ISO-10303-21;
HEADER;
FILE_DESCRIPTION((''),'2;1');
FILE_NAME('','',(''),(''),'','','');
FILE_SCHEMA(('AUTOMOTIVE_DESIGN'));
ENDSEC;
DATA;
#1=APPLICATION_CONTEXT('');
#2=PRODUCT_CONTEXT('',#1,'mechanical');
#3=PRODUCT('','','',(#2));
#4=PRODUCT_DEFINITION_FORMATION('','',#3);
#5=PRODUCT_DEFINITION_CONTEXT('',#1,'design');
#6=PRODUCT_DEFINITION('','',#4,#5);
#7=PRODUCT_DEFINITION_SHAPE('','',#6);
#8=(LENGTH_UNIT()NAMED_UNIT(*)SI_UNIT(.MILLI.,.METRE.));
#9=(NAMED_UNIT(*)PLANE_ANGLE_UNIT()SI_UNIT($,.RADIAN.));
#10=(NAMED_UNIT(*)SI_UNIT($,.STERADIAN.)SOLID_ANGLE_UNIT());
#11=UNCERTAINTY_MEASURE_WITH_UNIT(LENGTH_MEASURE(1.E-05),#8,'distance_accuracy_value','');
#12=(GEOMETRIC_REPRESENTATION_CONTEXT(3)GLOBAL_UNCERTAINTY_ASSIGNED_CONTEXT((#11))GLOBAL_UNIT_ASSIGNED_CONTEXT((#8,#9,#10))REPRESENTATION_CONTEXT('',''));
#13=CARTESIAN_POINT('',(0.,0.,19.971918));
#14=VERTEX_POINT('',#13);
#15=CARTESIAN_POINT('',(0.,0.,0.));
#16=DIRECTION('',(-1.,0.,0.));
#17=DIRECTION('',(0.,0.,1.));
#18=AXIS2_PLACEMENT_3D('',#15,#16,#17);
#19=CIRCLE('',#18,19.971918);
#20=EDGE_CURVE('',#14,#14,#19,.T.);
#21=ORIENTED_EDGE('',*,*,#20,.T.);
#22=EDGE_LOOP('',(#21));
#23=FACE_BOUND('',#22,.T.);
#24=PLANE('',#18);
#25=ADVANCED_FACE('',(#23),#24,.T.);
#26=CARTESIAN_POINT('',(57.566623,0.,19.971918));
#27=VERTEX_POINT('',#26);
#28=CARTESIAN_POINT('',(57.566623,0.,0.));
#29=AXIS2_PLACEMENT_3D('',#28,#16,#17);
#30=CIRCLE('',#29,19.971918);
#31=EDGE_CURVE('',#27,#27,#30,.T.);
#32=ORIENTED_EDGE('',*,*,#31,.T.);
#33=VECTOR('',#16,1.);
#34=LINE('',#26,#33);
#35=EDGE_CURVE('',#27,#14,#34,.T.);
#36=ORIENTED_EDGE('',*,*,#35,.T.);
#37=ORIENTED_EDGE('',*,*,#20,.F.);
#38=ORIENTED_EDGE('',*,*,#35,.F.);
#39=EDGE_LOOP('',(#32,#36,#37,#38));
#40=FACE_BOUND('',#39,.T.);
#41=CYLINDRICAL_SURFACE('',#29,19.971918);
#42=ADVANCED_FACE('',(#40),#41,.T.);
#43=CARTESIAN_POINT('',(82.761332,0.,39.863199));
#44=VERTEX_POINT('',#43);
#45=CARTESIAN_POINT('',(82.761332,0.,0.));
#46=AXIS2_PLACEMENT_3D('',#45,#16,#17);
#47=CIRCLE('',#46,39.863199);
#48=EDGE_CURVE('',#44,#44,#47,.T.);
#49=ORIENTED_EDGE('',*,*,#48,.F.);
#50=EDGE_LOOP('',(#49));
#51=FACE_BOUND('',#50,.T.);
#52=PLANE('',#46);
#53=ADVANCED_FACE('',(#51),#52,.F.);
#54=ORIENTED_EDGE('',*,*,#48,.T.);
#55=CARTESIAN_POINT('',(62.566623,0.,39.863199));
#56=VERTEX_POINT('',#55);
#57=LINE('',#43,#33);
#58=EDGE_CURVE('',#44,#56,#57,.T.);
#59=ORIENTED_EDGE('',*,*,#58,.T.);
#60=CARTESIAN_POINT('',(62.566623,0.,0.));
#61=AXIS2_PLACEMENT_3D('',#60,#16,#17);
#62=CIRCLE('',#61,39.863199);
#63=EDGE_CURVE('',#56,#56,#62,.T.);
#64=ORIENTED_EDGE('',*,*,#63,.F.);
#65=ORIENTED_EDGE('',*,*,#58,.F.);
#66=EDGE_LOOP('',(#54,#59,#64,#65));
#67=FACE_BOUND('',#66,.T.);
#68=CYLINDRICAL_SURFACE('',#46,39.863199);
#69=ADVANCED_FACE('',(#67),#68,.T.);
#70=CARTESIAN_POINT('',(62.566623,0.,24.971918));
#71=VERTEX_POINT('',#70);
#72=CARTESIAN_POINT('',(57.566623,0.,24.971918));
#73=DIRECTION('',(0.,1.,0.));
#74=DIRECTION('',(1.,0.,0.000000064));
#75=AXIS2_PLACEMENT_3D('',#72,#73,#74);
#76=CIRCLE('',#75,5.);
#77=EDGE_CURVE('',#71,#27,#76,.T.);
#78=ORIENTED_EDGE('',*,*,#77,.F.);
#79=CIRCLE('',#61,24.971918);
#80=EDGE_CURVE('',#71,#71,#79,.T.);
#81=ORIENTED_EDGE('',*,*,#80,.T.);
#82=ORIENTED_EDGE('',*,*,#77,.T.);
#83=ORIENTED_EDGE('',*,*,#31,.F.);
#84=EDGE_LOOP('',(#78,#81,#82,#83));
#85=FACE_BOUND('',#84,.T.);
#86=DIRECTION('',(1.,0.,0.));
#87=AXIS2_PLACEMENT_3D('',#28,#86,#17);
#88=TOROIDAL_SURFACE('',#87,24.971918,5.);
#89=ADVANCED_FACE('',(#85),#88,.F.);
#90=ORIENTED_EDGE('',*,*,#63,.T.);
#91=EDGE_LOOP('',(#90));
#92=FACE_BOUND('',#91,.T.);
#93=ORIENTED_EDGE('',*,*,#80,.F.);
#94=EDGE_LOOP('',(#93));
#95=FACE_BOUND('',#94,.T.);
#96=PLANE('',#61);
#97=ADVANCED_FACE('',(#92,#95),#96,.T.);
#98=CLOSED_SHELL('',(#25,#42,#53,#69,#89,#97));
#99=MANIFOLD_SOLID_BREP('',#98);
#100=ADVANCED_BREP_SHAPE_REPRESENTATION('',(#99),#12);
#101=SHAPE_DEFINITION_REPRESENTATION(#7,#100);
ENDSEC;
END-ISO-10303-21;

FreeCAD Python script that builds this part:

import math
import FreeCAD as App
import Part
import Sketcher
from FreeCAD import Vector
Q = App.Units.Quantity

doc = App.newDocument("Part")
body = doc.addObject("PartDesign::Body", "Body")

# Sketch on XZ plane
sketch1 = body.newObject("Sketcher::SketchObject", "Sketch")
sketch1.AttachmentSupport = (doc.getObject("XZ_Plane"), [""])
sketch1.MapMode = "FlatFace"
sketch1.addGeometry([
    Part.LineSegment(Vector(0, 19.971918, 0), Vector(0, 0, 0)),  # 0
    Part.LineSegment(Vector(0, 0, 0), Vector(82.761332, 0, 0)),  # 1
    Part.LineSegment(Vector(82.761332, 0, 0), Vector(82.761332, 39.863199, 0)),  # 2
    Part.LineSegment(Vector(82.761332, 39.863199, 0), Vector(62.566623, 39.863199, 0)),  # 3
    Part.LineSegment(Vector(62.566623, 39.863199, 0), Vector(62.566623, 24.971918, 0)),  # 4
    Part.ArcOfCircle(Part.Circle(Vector(57.566623, 24.971918, 0), Vector(0, 0, 1), 5), math.radians(-90.000004), math.radians(0.000004)),  # 5
    Part.LineSegment(Vector(57.566623, 19.971918, 0), Vector(0, 19.971918, 0)),  # 6
], False)
sketch1.addConstraint([
    Sketcher.Constraint("Coincident", 0, 2, 1, 1),
    Sketcher.Constraint("Coincident", 1, 2, 2, 1),
    Sketcher.Constraint("Coincident", 2, 2, 3, 1),
    Sketcher.Constraint("Coincident", 3, 2, 4, 1),
    Sketcher.Constraint("Tangent", 4, 2, 5, 2),
    Sketcher.Constraint("Tangent", 5, 1, 6, 1),
    Sketcher.Constraint("Coincident", 6, 2, 0, 1),
    Sketcher.Constraint("Vertical", 0),
    Sketcher.Constraint("Horizontal", 1),
    Sketcher.Constraint("Vertical", 2),
    Sketcher.Constraint("Horizontal", 3),
    Sketcher.Constraint("Vertical", 4),
    Sketcher.Constraint("Horizontal", 6),
    Sketcher.Constraint("Coincident", 0, 2, -1, 1),
    Sketcher.Constraint("Radius", 5, Q("5 mm")),
    Sketcher.Constraint("DistanceY", 2, 1, 2, 2, Q("39.863199 mm")),
    Sketcher.Constraint("DistanceX", 1, 1, 1, 2, Q("82.761332 mm")),
    Sketcher.Constraint("DistanceX", 3, 2, 3, 1, Q("20.194709 mm")),
    Sketcher.Constraint("DistanceY", 4, 2, 4, 1, Q("14.891281 mm")),
])
revolution = body.newObject("PartDesign::Revolution", "Revolution")
revolution.Profile = sketch1
revolution.ReferenceAxis = (sketch1, ["H_Axis"])
revolution.Angle = 360

doc.recompute()
